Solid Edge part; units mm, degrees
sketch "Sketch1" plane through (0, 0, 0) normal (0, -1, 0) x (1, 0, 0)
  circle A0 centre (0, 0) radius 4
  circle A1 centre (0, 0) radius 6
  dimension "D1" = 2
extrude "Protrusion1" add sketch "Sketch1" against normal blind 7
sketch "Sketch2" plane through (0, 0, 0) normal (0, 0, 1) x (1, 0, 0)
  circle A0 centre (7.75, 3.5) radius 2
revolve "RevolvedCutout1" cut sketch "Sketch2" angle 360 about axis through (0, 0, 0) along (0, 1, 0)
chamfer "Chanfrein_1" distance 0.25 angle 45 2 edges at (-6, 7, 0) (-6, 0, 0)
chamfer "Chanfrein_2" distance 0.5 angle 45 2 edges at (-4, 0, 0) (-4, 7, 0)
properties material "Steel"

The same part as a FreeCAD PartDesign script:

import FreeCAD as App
import Part
import Sketcher
from FreeCAD import Vector
Q = App.Units.Quantity


def edges_at(feature, points):
    """Names of the edges that pass closest to the given points."""
    edges = feature.Shape.Edges
    near = lambda p: min(range(len(edges)), key=lambda i: edges[i].distToShape(Part.Vertex(*p))[0])
    return sorted({f"Edge{near(p) + 1}" for p in points})

doc = App.newDocument("Part")
body = doc.addObject("PartDesign::Body", "Body")

sketch1 = doc.addObject("Sketcher::SketchObject", "Sketch")
body.addObject(sketch1)
sketch1.AttachmentSupport = (doc.XZ_Plane, [""])
sketch1.MapMode = "FlatFace"
sketch1.addGeometry(Part.Circle(Vector(0, 0, 0), Vector(0, 0, 1), 6), False)
sketch1.addGeometry(Part.Circle(Vector(0, 0, 0), Vector(0, 0, 1), 4), False)
sketch1.addConstraint(Sketcher.Constraint("Coincident", 0, 3, -1, 1))
sketch1.addConstraint(Sketcher.Constraint("Coincident", 1, 3, -1, 1))
sketch1.addConstraint(Sketcher.Constraint("Diameter", 0, Q("12 mm")))
sketch1.addConstraint(Sketcher.Constraint("Diameter", 1, Q("8 mm")))
pad1 = doc.addObject("PartDesign::Pad", "Pad")
body.addObject(pad1)
pad1.Profile = sketch1
pad1.Length = 7
pad1.Reversed = True

sketch2 = doc.addObject("Sketcher::SketchObject", "Sketch001")
body.addObject(sketch2)
sketch2.AttachmentSupport = (doc.XY_Plane, [""])
sketch2.MapMode = "FlatFace"
sketch2.addGeometry(Part.Circle(Vector(7.8, 3.5, 0), Vector(0, 0, 1), 2), False)
sketch2.addConstraint(Sketcher.Constraint("Diameter", 0, Q("4 mm")))
sketch2.addConstraint(Sketcher.Constraint("DistanceY", -1, 1, 0, 3, Q("3.5 mm")))
sketch2.addConstraint(Sketcher.Constraint("DistanceX", -1, 1, 0, 3, Q("7.75 mm")))
groove = doc.addObject("PartDesign::Groove", "Groove")
body.addObject(groove)
groove.Profile = sketch2
groove.ReferenceAxis = (sketch2, ["V_Axis"])
groove.Angle = 360
doc.recompute()

chamfer = doc.addObject("PartDesign::Chamfer", "Chamfer")
body.addObject(chamfer)
chamfer.Base = (groove, edges_at(groove, [(-6, 7, 0), (-6, 0, 0)]))
chamfer.Size = 0.25
doc.recompute()

chamfer2 = doc.addObject("PartDesign::Chamfer", "Chamfer001")
body.addObject(chamfer2)
chamfer2.Base = (chamfer, edges_at(chamfer, [(-4, 0, 0), (-4, 7, 0)]))
chamfer2.Size = 0.5

doc.recompute()
